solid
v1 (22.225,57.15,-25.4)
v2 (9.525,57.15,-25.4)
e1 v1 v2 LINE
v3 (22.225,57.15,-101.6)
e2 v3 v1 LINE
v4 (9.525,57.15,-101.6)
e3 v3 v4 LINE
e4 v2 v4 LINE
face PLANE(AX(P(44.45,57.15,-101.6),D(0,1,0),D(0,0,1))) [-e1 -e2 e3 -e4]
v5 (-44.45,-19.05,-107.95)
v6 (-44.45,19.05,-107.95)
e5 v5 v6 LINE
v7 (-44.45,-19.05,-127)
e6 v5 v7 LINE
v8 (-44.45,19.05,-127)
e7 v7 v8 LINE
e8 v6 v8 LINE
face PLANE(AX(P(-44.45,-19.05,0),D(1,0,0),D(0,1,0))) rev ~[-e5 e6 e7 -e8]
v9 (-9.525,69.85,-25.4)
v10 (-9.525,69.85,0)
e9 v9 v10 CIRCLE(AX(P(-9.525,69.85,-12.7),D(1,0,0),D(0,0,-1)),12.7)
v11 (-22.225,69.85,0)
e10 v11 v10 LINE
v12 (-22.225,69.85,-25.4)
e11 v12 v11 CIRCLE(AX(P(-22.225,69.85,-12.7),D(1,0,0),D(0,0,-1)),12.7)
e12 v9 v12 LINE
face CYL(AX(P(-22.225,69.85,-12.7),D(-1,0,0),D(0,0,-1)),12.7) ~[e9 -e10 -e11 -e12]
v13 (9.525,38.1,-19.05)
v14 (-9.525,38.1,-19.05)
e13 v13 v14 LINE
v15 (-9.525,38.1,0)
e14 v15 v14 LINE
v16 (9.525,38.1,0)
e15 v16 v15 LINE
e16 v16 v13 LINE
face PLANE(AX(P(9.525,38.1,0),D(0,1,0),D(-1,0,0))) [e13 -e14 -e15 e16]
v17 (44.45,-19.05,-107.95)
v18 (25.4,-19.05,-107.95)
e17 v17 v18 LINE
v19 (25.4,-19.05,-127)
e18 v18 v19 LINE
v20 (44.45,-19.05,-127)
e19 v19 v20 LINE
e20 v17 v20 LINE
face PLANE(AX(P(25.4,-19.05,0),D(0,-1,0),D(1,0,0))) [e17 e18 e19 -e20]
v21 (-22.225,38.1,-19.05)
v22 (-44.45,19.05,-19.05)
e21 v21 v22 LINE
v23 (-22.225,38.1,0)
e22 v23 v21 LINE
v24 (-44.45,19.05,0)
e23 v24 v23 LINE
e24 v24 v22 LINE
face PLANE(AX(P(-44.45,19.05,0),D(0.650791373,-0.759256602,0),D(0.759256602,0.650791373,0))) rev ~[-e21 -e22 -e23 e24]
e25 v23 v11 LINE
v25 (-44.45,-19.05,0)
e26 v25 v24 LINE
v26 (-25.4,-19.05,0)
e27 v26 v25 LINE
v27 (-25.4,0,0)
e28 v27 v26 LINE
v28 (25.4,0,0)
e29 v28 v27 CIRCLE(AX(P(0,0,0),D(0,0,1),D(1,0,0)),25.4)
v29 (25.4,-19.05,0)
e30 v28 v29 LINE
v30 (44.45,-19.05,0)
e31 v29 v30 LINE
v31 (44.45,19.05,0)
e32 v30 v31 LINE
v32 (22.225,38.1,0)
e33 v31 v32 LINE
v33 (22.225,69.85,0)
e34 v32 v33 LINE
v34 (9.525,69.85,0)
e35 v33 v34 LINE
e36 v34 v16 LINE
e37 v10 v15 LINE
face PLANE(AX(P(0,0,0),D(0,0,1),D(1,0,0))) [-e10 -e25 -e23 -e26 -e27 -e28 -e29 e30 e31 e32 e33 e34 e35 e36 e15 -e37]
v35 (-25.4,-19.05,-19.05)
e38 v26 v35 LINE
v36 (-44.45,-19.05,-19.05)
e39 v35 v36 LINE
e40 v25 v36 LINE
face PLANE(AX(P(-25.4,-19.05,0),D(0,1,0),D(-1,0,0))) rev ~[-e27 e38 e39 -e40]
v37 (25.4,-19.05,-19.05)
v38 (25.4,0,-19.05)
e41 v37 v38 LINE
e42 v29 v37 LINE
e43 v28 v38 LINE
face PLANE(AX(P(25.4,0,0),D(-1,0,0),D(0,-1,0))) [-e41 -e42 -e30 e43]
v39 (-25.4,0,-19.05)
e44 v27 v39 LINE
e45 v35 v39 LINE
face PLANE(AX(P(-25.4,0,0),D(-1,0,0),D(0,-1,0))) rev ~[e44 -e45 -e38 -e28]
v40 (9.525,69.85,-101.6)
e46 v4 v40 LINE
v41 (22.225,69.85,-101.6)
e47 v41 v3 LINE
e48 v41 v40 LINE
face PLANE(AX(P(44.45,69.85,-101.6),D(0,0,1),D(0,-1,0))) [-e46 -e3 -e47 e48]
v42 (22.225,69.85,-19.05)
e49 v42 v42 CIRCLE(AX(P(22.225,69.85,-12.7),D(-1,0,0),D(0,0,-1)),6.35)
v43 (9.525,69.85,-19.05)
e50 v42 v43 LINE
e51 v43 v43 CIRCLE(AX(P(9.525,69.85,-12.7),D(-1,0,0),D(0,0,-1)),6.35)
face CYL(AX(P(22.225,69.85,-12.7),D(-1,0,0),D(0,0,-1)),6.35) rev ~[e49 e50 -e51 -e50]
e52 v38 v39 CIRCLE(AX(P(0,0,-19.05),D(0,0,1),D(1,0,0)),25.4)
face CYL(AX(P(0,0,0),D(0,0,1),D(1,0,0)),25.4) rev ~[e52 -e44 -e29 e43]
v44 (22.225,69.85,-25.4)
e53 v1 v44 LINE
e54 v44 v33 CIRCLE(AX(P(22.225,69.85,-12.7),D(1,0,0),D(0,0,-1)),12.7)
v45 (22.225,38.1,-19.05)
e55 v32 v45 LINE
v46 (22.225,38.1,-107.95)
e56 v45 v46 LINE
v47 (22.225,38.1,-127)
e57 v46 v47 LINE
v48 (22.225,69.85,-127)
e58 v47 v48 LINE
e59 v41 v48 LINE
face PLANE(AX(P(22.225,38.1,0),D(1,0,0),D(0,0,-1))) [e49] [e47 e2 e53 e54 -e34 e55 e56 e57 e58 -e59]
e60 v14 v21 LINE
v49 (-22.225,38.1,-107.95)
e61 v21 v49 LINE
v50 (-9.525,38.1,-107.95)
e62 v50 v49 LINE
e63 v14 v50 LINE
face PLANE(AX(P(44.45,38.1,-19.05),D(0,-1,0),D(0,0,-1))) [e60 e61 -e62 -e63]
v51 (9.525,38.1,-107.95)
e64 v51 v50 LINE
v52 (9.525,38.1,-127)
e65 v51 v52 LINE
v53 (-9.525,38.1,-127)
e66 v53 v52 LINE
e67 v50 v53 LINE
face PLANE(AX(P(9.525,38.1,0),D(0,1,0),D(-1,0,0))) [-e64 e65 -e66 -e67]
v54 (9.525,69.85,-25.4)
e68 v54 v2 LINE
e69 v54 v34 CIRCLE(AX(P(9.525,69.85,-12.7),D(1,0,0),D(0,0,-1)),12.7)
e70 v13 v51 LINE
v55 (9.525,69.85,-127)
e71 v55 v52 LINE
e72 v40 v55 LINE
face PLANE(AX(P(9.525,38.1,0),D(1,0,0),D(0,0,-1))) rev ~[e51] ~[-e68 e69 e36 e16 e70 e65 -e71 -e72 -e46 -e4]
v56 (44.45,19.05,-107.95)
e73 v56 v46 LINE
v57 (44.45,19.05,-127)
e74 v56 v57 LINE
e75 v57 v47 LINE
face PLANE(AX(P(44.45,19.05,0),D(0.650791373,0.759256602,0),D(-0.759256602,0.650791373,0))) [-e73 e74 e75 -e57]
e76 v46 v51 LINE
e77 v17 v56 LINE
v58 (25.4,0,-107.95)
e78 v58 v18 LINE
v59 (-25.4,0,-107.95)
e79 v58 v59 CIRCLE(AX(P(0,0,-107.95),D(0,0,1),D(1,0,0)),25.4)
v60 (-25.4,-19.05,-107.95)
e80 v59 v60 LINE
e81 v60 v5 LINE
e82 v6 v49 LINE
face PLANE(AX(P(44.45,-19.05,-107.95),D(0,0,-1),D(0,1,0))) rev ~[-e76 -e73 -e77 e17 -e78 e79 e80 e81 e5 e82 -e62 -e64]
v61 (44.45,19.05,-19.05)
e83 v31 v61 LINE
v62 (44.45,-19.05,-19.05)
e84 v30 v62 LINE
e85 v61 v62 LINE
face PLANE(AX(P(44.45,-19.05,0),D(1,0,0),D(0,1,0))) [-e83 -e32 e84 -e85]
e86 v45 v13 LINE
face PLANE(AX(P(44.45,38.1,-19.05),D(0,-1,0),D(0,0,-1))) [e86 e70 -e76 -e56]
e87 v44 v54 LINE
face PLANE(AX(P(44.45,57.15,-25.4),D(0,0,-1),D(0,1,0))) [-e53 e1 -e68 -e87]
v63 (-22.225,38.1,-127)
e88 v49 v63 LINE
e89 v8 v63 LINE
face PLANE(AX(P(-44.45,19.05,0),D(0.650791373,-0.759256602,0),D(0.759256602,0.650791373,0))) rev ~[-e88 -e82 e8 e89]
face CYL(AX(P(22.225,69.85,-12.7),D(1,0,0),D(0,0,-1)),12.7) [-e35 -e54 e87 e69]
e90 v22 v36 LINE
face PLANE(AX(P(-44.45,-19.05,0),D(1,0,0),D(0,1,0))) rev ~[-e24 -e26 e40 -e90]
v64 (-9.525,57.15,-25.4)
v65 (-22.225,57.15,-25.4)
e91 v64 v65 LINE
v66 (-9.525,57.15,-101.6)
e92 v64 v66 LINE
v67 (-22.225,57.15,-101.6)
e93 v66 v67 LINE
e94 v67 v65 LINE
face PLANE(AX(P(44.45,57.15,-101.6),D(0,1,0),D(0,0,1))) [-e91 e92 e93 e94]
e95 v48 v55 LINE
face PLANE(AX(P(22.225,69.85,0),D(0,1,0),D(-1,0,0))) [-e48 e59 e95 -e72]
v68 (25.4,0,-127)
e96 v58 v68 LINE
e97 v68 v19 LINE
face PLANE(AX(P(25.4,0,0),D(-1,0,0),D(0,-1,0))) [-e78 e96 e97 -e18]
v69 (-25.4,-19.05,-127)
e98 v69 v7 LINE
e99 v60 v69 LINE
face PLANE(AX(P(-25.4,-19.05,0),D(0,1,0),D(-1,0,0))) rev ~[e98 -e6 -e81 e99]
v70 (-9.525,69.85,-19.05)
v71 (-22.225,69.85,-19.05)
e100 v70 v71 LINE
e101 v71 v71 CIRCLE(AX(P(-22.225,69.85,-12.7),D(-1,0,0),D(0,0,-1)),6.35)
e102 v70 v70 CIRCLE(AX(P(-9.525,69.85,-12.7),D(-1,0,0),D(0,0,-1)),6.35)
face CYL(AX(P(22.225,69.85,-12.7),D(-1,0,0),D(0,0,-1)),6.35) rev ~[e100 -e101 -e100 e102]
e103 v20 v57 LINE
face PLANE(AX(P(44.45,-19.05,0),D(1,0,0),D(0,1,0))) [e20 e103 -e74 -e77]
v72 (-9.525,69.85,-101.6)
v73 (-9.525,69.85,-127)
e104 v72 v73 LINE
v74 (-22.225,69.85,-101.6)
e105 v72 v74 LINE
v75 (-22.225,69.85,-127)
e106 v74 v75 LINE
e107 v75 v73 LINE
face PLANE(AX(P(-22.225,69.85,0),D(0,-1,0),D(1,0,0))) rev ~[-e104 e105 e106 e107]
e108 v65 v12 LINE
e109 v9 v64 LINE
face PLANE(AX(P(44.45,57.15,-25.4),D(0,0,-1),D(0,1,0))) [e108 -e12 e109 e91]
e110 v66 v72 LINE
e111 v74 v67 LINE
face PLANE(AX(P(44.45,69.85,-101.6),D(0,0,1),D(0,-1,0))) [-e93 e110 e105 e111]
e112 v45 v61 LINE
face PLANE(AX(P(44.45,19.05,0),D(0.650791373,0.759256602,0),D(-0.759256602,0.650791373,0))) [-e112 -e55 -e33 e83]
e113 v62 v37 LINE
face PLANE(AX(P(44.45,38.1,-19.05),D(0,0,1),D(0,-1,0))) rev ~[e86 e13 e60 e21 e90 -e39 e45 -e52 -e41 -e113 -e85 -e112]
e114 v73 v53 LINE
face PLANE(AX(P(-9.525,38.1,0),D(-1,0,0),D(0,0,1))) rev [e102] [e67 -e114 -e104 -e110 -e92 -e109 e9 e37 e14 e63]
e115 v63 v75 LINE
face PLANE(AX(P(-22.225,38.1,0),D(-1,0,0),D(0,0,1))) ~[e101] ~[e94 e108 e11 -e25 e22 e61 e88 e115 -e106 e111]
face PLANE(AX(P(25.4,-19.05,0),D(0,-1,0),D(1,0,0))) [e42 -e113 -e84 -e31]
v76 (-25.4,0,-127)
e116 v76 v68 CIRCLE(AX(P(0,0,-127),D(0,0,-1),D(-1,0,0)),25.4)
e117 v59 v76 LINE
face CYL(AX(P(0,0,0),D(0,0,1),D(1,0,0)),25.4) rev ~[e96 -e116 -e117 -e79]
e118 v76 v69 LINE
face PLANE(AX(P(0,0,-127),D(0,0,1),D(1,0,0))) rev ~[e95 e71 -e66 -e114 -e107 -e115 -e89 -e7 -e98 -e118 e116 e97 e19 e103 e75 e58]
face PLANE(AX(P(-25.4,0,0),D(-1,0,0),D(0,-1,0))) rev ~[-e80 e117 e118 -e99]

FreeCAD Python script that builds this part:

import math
import FreeCAD as App
import Part
import Sketcher
from FreeCAD import Vector
Q = App.Units.Quantity


def add_polygon(sketch, points):
    """Adds a closed chain of lines whose ends are joined by coincident constraints."""
    first, n = sketch.GeometryCount, len(points)
    for a, b in zip(points, points[1:] + points[:1]):
        sketch.addGeometry(Part.LineSegment(App.Vector(*a, 0), App.Vector(*b, 0)), False)
    for i in range(n):
        sketch.addConstraint(Sketcher.Constraint("Coincident", first + i, 2, first + (i + 1) % n, 1))

doc = App.newDocument("Part")
body = doc.addObject("PartDesign::Body", "Body")

sketch1 = body.newObject("Sketcher::SketchObject", "Sketch")
sketch1.AttachmentSupport = (doc.getObject("XY_Plane"), [""])
sketch1.MapMode = "FlatFace"
sketch1.addGeometry([
    Part.LineSegment(Vector(25, 0, 0), Vector(25, -19, 0)),
    Part.LineSegment(Vector(25, -19, 0), Vector(44, -19, 0)),
    Part.LineSegment(Vector(44, -19, 0), Vector(44, 19, 0)),
    Part.LineSegment(Vector(44, 19, 0), Vector(22, 38, 0)),
    Part.LineSegment(Vector(22, 38, 0), Vector(22, 70, 0)),
    Part.LineSegment(Vector(22, 70, 0), Vector(10, 70, 0)),
    Part.LineSegment(Vector(10, 70, 0), Vector(10, 38, 0)),
    Part.LineSegment(Vector(10, 38, 0), Vector(-10, 38, 0)),
    Part.LineSegment(Vector(-10, 38, 0), Vector(-10, 70, 0)),
    Part.LineSegment(Vector(-10, 70, 0), Vector(-22, 70, 0)),
    Part.LineSegment(Vector(-22, 70, 0), Vector(-22, 38, 0)),
    Part.LineSegment(Vector(-22, 38, 0), Vector(-44, 19, 0)),
    Part.LineSegment(Vector(-44, 19, 0), Vector(-44, -19, 0)),
    Part.LineSegment(Vector(-44, -19, 0), Vector(-25, -19, 0)),
    Part.LineSegment(Vector(-25, -19, 0), Vector(-25, 0, 0)),
    Part.ArcOfCircle(Part.Circle(Vector(0, 0, 0), Vector(0, 0, 1), 25), math.radians(0), math.radians(180)),
], False)
sketch1.addConstraint([
    Sketcher.Constraint("Coincident", 0, 2, 1, 1),
    Sketcher.Constraint("Coincident", 1, 2, 2, 1),
    Sketcher.Constraint("Coincident", 2, 2, 3, 1),
    Sketcher.Constraint("Coincident", 3, 2, 4, 1),
    Sketcher.Constraint("Coincident", 4, 2, 5, 1),
    Sketcher.Constraint("Coincident", 5, 2, 6, 1),
    Sketcher.Constraint("Coincident", 6, 2, 7, 1),
    Sketcher.Constraint("Coincident", 7, 2, 8, 1),
    Sketcher.Constraint("Coincident", 8, 2, 9, 1),
    Sketcher.Constraint("Coincident", 9, 2, 10, 1),
    Sketcher.Constraint("Coincident", 10, 2, 11, 1),
    Sketcher.Constraint("Coincident", 11, 2, 12, 1),
    Sketcher.Constraint("Coincident", 12, 2, 13, 1),
    Sketcher.Constraint("Coincident", 13, 2, 14, 1),
    Sketcher.Constraint("Tangent", 14, 2, 15, 2),
    Sketcher.Constraint("Tangent", 15, 1, 0, 1),
    Sketcher.Constraint("Vertical", 0),
    Sketcher.Constraint("Horizontal", 1),
    Sketcher.Constraint("Vertical", 2),
    Sketcher.Constraint("Vertical", 4),
    Sketcher.Constraint("Horizontal", 5),
    Sketcher.Constraint("Vertical", 6),
    Sketcher.Constraint("Horizontal", 7),
    Sketcher.Constraint("Vertical", 8),
    Sketcher.Constraint("Horizontal", 9),
    Sketcher.Constraint("Vertical", 10),
    Sketcher.Constraint("Vertical", 12),
    Sketcher.Constraint("Horizontal", 13),
    Sketcher.Constraint("Vertical", 14),
    Sketcher.Constraint("Coincident", 15, 3, -1, 1),
    Sketcher.Constraint("Symmetric", 1, 2, 11, 2, -1, 1),
    Sketcher.Constraint("Symmetric", 5, 2, 8, 2, -2),
    Sketcher.Constraint("Symmetric", 3, 2, 10, 2, -2),
    Sketcher.Constraint("Horizontal", 3, 2, 6, 2),
    Sketcher.Constraint("Horizontal", 2, 2, 11, 2),
    Sketcher.Constraint("Horizontal", 1, 2, 12, 2),
    Sketcher.Constraint("Equal", 1, 7),
    Sketcher.Constraint("Equal", 13, 0),
    Sketcher.Constraint("Radius", 15, Q("1 in")),
    Sketcher.Constraint("DistanceY", 2, 1, 2, 2, Q("1.5 in")),
    Sketcher.Constraint("DistanceY", 4, 1, 4, 2, Q("1.25 in")),
    Sketcher.Constraint("DistanceY", -1, 1, 3, 2, Q("1.5 in")),
    Sketcher.Constraint("DistanceX", 7, 2, 3, 2, Q("1.25 in")),
])
pad1 = body.newObject("PartDesign::Pad", "Pad")
pad1.Profile = sketch1
pad1.Length = Q("5 in")
pad1.Reversed = True

sketch2 = body.newObject("Sketcher::SketchObject", "Sketch001")
sketch2.AttachmentSupport = (doc.getObject("YZ_Plane"), [""])
sketch2.MapMode = "FlatFace"
sketch2.AttachmentOffset = App.Placement(Vector(0, 0, 1.75 * 25.4), App.Rotation())
add_polygon(sketch2, [(70, -102), (70, -25), (57, -25), (57, -102)])
add_polygon(sketch2, [(38, -108), (38, -19), (-19, -19), (-19, -108)])
sketch2.addConstraint([
    Sketcher.Constraint("Vertical", 0),
    Sketcher.Constraint("Horizontal", 1),
    Sketcher.Constraint("Vertical", 2),
    Sketcher.Constraint("Horizontal", 3),
    Sketcher.Constraint("Vertical", 4),
    Sketcher.Constraint("Horizontal", 5),
    Sketcher.Constraint("Vertical", 6),
    Sketcher.Constraint("Horizontal", 7),
    Sketcher.Constraint("DistanceX", 1, 2, 1, 1, Q("0.5 in")),
    Sketcher.Constraint("DistanceY", 0, 2, -1, 1, Q("1 in")),
    Sketcher.Constraint("DistanceY", 0, 1, 0, 2, Q("3 in")),
    Sketcher.Constraint("DistanceY", 4, 2, -1, 1, Q("0.75 in")),
    Sketcher.Constraint("DistanceX", 5, 2, -1, 1, Q("0.75 in")),
    Sketcher.Constraint("DistanceX", 4, 2, 1, 2, Q("0.75 in")),
    Sketcher.Constraint("DistanceY", 4, 1, 4, 2, Q("3.5 in")),
    Sketcher.Constraint("DistanceX", 5, 2, 1, 2, Q("3 in")),
])
pocket1 = body.newObject("PartDesign::Pocket", "Pocket")
pocket1.Profile = sketch2
pocket1.Type = "ThroughAll"

sketch3 = body.newObject("Sketcher::SketchObject", "Sketch002")
sketch3.AttachmentSupport = (doc.getObject("YZ_Plane"), [""])
sketch3.MapMode = "FlatFace"
sketch3.AttachmentOffset = App.Placement(Vector(0, 0, 0.875 * 25.4), App.Rotation())
sketch3.addGeometry([
    Part.ArcOfCircle(Part.Circle(Vector(70, -13, 0), Vector(0, 0, 1), 13), math.radians(-90), math.radians(90)),
    Part.LineSegment(Vector(70, 0, 0), Vector(70, -25, 0)),
], False)
sketch3.addConstraint([
    Sketcher.Constraint("Coincident", 0, 1, 1, 2),
    Sketcher.Constraint("Coincident", 1, 1, 0, 2),
    Sketcher.Constraint("Vertical", 1),
    Sketcher.Constraint("PointOnObject", 1, 1, -1),
    Sketcher.Constraint("Radius", 0, Q("0.5 in")),
    Sketcher.Constraint("DistanceX", -1, 1, 0, 3, Q("2.75 in")),
    Sketcher.Constraint("DistanceX", -1, 1, 0, 1, Q("2.75 in")),
])
pad2 = body.newObject("PartDesign::Pad", "Pad001")
pad2.Profile = sketch3
pad2.Length = Q("0.5 in")
pad2.Reversed = True
doc.recompute()

mirrored = body.newObject("PartDesign::Mirrored", "Mirrored")
mirrored.Originals = [pad2]
mirrored.MirrorPlane = (doc.getObject("YZ_Plane"), [""])
body.Tip = mirrored

sketch4 = body.newObject("Sketcher::SketchObject", "Sketch003")
sketch4.AttachmentSupport = (doc.getObject("YZ_Plane"), [""])
sketch4.MapMode = "FlatFace"
sketch4.AttachmentOffset = App.Placement(Vector(0, 0, 0.875 * 25.4), App.Rotation())
sketch4.addGeometry(Part.Circle(Vector(70, -13, 0), Vector(0, 0, 1), 6), False)
sketch4.addConstraint([
    Sketcher.Constraint("Diameter", 0, Q("0.5 in")),
    Sketcher.Constraint("DistanceY", 0, 3, -1, 1, Q("0.5 in")),
    Sketcher.Constraint("DistanceX", -1, 1, 0, 3, Q("2.75 in")),
])
doc.recompute()
hole = body.newObject("PartDesign::Hole", "Hole")
hole.Profile = sketch4
hole.ThreadType = "None"
hole.Diameter = Q("0.5 in")
hole.DepthType = "ThroughAll"

doc.recompute()
